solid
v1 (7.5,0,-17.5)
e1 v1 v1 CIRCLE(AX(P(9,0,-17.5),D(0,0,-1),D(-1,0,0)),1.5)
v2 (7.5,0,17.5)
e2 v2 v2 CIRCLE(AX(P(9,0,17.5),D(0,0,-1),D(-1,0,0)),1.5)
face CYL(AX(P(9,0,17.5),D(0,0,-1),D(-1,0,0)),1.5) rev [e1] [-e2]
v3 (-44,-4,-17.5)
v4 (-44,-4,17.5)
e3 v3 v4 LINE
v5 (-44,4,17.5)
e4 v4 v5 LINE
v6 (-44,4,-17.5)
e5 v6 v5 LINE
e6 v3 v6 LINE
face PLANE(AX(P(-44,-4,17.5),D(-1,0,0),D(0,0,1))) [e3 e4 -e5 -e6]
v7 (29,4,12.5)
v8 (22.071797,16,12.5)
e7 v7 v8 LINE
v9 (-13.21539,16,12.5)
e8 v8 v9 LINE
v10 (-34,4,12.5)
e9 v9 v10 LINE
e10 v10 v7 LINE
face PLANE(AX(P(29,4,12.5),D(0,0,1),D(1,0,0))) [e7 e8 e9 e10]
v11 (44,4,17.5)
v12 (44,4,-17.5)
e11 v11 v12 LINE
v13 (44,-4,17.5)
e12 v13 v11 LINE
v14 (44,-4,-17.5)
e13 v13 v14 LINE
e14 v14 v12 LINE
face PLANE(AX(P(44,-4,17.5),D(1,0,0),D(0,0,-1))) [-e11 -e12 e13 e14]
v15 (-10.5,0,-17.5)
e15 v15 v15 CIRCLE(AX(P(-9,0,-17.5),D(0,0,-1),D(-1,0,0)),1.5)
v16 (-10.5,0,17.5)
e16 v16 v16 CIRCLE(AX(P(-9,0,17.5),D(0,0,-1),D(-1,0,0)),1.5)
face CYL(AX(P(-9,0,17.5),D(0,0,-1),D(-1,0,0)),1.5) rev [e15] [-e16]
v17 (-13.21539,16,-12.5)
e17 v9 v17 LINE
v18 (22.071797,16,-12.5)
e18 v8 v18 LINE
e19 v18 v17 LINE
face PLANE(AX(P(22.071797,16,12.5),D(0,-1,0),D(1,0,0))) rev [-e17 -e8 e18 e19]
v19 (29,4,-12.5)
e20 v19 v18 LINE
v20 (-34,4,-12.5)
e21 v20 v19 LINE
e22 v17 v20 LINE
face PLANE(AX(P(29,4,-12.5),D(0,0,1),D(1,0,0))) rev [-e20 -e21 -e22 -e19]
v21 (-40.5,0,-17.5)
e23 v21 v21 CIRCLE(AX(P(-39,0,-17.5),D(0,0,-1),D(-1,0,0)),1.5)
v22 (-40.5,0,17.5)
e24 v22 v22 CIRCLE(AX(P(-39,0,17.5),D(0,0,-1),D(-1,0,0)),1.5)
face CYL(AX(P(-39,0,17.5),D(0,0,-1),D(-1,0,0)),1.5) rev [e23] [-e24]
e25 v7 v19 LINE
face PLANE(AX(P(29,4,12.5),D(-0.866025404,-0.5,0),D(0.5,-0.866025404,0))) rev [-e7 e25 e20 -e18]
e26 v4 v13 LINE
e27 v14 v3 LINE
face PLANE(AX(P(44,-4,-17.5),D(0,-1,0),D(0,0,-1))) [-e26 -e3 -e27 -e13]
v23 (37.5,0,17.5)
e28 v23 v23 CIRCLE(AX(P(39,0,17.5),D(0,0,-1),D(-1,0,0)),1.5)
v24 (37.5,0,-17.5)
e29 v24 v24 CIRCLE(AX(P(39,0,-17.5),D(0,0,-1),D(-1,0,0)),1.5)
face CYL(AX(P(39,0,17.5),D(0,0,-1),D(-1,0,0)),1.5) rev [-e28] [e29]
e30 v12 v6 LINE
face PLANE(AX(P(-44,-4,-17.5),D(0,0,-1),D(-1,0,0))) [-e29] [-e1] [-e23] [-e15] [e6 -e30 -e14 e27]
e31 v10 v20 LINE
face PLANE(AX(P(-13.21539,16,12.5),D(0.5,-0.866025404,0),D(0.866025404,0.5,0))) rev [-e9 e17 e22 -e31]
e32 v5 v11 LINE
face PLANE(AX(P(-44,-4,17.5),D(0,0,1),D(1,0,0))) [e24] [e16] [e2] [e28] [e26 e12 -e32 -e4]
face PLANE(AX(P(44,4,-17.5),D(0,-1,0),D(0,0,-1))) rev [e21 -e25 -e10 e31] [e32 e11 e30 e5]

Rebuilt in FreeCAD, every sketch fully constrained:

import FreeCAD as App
import Part
import Sketcher
Q = App.Units.Quantity

doc = App.newDocument("Part")
body = doc.addObject("PartDesign::Body", "Body")

sketch1 = body.newObject("Sketcher::SketchObject", "Sketch")
sketch1.AttachmentSupport = (doc.getObject("XZ_Plane"), [""])
sketch1.MapMode = "FlatFace"
sketch1.addGeometry([
    Part.LineSegment(App.Vector(-44, -18, 0), App.Vector(-44, 18, 0)),
    Part.LineSegment(App.Vector(-44, 18, 0), App.Vector(44, 18, 0)),
    Part.LineSegment(App.Vector(44, 18, 0), App.Vector(44, -18, 0)),
    Part.LineSegment(App.Vector(44, -18, 0), App.Vector(-44, -18, 0)),
], False)
sketch1.addConstraint([
    Sketcher.Constraint("Coincident", 0, 2, 1, 1),
    Sketcher.Constraint("Coincident", 1, 2, 2, 1),
    Sketcher.Constraint("Coincident", 2, 2, 3, 1),
    Sketcher.Constraint("Coincident", 3, 2, 0, 1),
    Sketcher.Constraint("Vertical", 0),
    Sketcher.Constraint("Horizontal", 1),
    Sketcher.Constraint("Vertical", 2),
    Sketcher.Constraint("Horizontal", 3),
    Sketcher.Constraint("Symmetric", 0, 2, 2, 2, -1, 1),
    Sketcher.Constraint("DistanceX", 1, 1, 1, 2, 88.0),
    Sketcher.Constraint("DistanceY", 0, 1, 0, 2, 35.0),
])
pad1 = body.newObject("PartDesign::Pad", "Pad")
pad1.Profile = sketch1
pad1.Type = "TwoLengths"
pad1.Length = 4
pad1.Length2 = 4
pad1.Reversed = True

sketch2 = body.newObject("Sketcher::SketchObject", "Sketch001")
sketch2.AttachmentSupport = (doc.getObject("XY_Plane"), [""])
sketch2.MapMode = "FlatFace"
sketch2.AttachmentOffset = App.Placement(App.Vector(0, 0, -17.5), App.Rotation())
sketch2.addGeometry([
    Part.Circle(App.Vector(-39, 0, 0), App.Vector(0, 0, 1), 1.5),
    Part.Circle(App.Vector(39, 0, 0), App.Vector(0, 0, 1), 1.5),
    Part.Circle(App.Vector(9, 0, 0), App.Vector(0, 0, 1), 1.5),
    Part.Circle(App.Vector(-9, 0, 0), App.Vector(0, 0, 1), 1.5),
], False)
sketch2.addConstraint([
    Sketcher.Constraint("Equal", 0, 1),
    Sketcher.Constraint("Equal", 1, 2),
    Sketcher.Constraint("Equal", 2, 3),
    Sketcher.Constraint("Symmetric", 0, 3, 1, 3, -1, 1),
    Sketcher.Constraint("Symmetric", 2, 3, 3, 3, -1, 1),
    Sketcher.Constraint("PointOnObject", 0, 3, -1),
    Sketcher.Constraint("PointOnObject", 2, 3, -1),
    Sketcher.Constraint("Diameter", 0, 3.0),
    Sketcher.Constraint("DistanceX", 0, 3, -1, 1, 39.0),
    Sketcher.Constraint("DistanceX", -1, 1, 2, 3, 9.0),
])
pocket1 = body.newObject("PartDesign::Pocket", "Pocket")
pocket1.Profile = sketch2
pocket1.Type = "ThroughAll"
pocket1.Reversed = True

sketch3 = body.newObject("Sketcher::SketchObject", "Sketch002")
sketch3.AttachmentSupport = (doc.getObject("XY_Plane"), [""])
sketch3.MapMode = "FlatFace"
sketch3.addGeometry([
    Part.LineSegment(App.Vector(29, 4, 0), App.Vector(22, 16, 0)),
    Part.LineSegment(App.Vector(22, 16, 0), App.Vector(-13, 16, 0)),
    Part.LineSegment(App.Vector(-13, 16, 0), App.Vector(-34, 4, 0)),
    Part.LineSegment(App.Vector(-34, 4, 0), App.Vector(29, 4, 0)),
], False)
sketch3.addConstraint([
    Sketcher.Constraint("Coincident", 0, 2, 1, 1),
    Sketcher.Constraint("Coincident", 1, 2, 2, 1),
    Sketcher.Constraint("Coincident", 2, 2, 3, 1),
    Sketcher.Constraint("Coincident", 3, 2, 0, 1),
    Sketcher.Constraint("Horizontal", 1),
    Sketcher.Constraint("Horizontal", 3),
    Sketcher.Constraint("Perpendicular", 0, 2),
    Sketcher.Constraint("DistanceX", 3, 1, 3, 2, 63.0),
    Sketcher.Constraint("Angle", 0, Q("120 deg")),
    Sketcher.Constraint("Distance", 2, 24.0),
    Sketcher.Constraint("DistanceY", -1, 1, 0, 2, 16.0),
    Sketcher.Constraint("DistanceX", 2, 2, -1, 1, 34.0),
])
pad2 = body.newObject("PartDesign::Pad", "Pad001")
pad2.Profile = sketch3
pad2.Length = 25
pad2.Midplane = True

doc.recompute()
